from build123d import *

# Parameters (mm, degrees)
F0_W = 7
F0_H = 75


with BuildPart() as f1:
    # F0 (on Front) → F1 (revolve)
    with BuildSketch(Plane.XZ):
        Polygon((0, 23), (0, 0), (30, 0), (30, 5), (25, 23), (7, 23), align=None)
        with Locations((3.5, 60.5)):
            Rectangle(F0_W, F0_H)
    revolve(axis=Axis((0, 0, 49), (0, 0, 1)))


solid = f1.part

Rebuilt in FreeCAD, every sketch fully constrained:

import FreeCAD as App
import Part
import Sketcher

V = App.Vector


def add_polygon(sketch, points):
    """Adds a closed chain of lines whose ends are joined by coincident constraints."""
    first, n = sketch.GeometryCount, len(points)
    for a, b in zip(points, points[1:] + points[:1]):
        sketch.addGeometry(Part.LineSegment(App.Vector(*a, 0), App.Vector(*b, 0)), False)
    for i in range(n):
        sketch.addConstraint(Sketcher.Constraint("Coincident", first + i, 2, first + (i + 1) % n, 1))

doc = App.newDocument("Part")
params = doc.addObject("Spreadsheet::Sheet", "Params")
for row, (alias, value) in enumerate([
    ("sketch1_width", "30 mm"),
    ("sketch1_width2", "18 mm"),
    ("sketch1_width3", "7 mm"),
    ("sketch1_height", "5 mm"),
    ("sketch1_height2", "75 mm"),
    ("revolution_angle", "360 deg"),
], start=1):
    params.set(f"A{row}", alias)
    params.set(f"B{row}", "=" + value)
    params.setAlias(f"B{row}", alias)

body = doc.addObject("PartDesign::Body", "Body")

# Sketch on XZ plane
sketch1 = doc.addObject("Sketcher::SketchObject", "Sketch")
body.addObject(sketch1)
sketch1.AttachmentSupport = (doc.XZ_Plane, [""])
sketch1.MapMode = "FlatFace"
add_polygon(sketch1, [(0, 0), (30, 0), (30, 5), (25, 23), (7, 23), (7, 98), (0, 98)])  # lines 0-6
sketch1.addConstraint([
    Sketcher.Constraint("Horizontal", 0),
    Sketcher.Constraint("Vertical", 1),
    Sketcher.Constraint("Horizontal", 3),
    Sketcher.Constraint("Vertical", 4),
    Sketcher.Constraint("Horizontal", 5),
    Sketcher.Constraint("Vertical", 6),
    Sketcher.Constraint("Coincident", 6, 2, -1, 1),
    Sketcher.Constraint("DistanceX", 0, 1, 0, 2, 30.0),
    Sketcher.Constraint("DistanceX", 3, 2, 3, 1, 18.0),
    Sketcher.Constraint("DistanceX", 5, 2, 5, 1, 7.0),
    Sketcher.Constraint("DistanceY", 1, 1, 1, 2, 5.0),
    Sketcher.Constraint("DistanceY", 4, 1, 4, 2, 75.0),
    Sketcher.Constraint("DistanceY", 6, 2, 6, 1, 98.0),
])
sketch1.setExpression("Constraints[14]", "Params.sketch1_width")
sketch1.setExpression("Constraints[15]", "Params.sketch1_width2")
sketch1.setExpression("Constraints[16]", "Params.sketch1_width3")
sketch1.setExpression("Constraints[17]", "Params.sketch1_height")
sketch1.setExpression("Constraints[18]", "Params.sketch1_height2")
revolution = doc.addObject("PartDesign::Revolution", "Revolution")
body.addObject(revolution)
revolution.Profile = sketch1
revolution.ReferenceAxis = (sketch1, ["V_Axis"])
revolution.setExpression("Angle", "Params.revolution_angle")

doc.recompute()
